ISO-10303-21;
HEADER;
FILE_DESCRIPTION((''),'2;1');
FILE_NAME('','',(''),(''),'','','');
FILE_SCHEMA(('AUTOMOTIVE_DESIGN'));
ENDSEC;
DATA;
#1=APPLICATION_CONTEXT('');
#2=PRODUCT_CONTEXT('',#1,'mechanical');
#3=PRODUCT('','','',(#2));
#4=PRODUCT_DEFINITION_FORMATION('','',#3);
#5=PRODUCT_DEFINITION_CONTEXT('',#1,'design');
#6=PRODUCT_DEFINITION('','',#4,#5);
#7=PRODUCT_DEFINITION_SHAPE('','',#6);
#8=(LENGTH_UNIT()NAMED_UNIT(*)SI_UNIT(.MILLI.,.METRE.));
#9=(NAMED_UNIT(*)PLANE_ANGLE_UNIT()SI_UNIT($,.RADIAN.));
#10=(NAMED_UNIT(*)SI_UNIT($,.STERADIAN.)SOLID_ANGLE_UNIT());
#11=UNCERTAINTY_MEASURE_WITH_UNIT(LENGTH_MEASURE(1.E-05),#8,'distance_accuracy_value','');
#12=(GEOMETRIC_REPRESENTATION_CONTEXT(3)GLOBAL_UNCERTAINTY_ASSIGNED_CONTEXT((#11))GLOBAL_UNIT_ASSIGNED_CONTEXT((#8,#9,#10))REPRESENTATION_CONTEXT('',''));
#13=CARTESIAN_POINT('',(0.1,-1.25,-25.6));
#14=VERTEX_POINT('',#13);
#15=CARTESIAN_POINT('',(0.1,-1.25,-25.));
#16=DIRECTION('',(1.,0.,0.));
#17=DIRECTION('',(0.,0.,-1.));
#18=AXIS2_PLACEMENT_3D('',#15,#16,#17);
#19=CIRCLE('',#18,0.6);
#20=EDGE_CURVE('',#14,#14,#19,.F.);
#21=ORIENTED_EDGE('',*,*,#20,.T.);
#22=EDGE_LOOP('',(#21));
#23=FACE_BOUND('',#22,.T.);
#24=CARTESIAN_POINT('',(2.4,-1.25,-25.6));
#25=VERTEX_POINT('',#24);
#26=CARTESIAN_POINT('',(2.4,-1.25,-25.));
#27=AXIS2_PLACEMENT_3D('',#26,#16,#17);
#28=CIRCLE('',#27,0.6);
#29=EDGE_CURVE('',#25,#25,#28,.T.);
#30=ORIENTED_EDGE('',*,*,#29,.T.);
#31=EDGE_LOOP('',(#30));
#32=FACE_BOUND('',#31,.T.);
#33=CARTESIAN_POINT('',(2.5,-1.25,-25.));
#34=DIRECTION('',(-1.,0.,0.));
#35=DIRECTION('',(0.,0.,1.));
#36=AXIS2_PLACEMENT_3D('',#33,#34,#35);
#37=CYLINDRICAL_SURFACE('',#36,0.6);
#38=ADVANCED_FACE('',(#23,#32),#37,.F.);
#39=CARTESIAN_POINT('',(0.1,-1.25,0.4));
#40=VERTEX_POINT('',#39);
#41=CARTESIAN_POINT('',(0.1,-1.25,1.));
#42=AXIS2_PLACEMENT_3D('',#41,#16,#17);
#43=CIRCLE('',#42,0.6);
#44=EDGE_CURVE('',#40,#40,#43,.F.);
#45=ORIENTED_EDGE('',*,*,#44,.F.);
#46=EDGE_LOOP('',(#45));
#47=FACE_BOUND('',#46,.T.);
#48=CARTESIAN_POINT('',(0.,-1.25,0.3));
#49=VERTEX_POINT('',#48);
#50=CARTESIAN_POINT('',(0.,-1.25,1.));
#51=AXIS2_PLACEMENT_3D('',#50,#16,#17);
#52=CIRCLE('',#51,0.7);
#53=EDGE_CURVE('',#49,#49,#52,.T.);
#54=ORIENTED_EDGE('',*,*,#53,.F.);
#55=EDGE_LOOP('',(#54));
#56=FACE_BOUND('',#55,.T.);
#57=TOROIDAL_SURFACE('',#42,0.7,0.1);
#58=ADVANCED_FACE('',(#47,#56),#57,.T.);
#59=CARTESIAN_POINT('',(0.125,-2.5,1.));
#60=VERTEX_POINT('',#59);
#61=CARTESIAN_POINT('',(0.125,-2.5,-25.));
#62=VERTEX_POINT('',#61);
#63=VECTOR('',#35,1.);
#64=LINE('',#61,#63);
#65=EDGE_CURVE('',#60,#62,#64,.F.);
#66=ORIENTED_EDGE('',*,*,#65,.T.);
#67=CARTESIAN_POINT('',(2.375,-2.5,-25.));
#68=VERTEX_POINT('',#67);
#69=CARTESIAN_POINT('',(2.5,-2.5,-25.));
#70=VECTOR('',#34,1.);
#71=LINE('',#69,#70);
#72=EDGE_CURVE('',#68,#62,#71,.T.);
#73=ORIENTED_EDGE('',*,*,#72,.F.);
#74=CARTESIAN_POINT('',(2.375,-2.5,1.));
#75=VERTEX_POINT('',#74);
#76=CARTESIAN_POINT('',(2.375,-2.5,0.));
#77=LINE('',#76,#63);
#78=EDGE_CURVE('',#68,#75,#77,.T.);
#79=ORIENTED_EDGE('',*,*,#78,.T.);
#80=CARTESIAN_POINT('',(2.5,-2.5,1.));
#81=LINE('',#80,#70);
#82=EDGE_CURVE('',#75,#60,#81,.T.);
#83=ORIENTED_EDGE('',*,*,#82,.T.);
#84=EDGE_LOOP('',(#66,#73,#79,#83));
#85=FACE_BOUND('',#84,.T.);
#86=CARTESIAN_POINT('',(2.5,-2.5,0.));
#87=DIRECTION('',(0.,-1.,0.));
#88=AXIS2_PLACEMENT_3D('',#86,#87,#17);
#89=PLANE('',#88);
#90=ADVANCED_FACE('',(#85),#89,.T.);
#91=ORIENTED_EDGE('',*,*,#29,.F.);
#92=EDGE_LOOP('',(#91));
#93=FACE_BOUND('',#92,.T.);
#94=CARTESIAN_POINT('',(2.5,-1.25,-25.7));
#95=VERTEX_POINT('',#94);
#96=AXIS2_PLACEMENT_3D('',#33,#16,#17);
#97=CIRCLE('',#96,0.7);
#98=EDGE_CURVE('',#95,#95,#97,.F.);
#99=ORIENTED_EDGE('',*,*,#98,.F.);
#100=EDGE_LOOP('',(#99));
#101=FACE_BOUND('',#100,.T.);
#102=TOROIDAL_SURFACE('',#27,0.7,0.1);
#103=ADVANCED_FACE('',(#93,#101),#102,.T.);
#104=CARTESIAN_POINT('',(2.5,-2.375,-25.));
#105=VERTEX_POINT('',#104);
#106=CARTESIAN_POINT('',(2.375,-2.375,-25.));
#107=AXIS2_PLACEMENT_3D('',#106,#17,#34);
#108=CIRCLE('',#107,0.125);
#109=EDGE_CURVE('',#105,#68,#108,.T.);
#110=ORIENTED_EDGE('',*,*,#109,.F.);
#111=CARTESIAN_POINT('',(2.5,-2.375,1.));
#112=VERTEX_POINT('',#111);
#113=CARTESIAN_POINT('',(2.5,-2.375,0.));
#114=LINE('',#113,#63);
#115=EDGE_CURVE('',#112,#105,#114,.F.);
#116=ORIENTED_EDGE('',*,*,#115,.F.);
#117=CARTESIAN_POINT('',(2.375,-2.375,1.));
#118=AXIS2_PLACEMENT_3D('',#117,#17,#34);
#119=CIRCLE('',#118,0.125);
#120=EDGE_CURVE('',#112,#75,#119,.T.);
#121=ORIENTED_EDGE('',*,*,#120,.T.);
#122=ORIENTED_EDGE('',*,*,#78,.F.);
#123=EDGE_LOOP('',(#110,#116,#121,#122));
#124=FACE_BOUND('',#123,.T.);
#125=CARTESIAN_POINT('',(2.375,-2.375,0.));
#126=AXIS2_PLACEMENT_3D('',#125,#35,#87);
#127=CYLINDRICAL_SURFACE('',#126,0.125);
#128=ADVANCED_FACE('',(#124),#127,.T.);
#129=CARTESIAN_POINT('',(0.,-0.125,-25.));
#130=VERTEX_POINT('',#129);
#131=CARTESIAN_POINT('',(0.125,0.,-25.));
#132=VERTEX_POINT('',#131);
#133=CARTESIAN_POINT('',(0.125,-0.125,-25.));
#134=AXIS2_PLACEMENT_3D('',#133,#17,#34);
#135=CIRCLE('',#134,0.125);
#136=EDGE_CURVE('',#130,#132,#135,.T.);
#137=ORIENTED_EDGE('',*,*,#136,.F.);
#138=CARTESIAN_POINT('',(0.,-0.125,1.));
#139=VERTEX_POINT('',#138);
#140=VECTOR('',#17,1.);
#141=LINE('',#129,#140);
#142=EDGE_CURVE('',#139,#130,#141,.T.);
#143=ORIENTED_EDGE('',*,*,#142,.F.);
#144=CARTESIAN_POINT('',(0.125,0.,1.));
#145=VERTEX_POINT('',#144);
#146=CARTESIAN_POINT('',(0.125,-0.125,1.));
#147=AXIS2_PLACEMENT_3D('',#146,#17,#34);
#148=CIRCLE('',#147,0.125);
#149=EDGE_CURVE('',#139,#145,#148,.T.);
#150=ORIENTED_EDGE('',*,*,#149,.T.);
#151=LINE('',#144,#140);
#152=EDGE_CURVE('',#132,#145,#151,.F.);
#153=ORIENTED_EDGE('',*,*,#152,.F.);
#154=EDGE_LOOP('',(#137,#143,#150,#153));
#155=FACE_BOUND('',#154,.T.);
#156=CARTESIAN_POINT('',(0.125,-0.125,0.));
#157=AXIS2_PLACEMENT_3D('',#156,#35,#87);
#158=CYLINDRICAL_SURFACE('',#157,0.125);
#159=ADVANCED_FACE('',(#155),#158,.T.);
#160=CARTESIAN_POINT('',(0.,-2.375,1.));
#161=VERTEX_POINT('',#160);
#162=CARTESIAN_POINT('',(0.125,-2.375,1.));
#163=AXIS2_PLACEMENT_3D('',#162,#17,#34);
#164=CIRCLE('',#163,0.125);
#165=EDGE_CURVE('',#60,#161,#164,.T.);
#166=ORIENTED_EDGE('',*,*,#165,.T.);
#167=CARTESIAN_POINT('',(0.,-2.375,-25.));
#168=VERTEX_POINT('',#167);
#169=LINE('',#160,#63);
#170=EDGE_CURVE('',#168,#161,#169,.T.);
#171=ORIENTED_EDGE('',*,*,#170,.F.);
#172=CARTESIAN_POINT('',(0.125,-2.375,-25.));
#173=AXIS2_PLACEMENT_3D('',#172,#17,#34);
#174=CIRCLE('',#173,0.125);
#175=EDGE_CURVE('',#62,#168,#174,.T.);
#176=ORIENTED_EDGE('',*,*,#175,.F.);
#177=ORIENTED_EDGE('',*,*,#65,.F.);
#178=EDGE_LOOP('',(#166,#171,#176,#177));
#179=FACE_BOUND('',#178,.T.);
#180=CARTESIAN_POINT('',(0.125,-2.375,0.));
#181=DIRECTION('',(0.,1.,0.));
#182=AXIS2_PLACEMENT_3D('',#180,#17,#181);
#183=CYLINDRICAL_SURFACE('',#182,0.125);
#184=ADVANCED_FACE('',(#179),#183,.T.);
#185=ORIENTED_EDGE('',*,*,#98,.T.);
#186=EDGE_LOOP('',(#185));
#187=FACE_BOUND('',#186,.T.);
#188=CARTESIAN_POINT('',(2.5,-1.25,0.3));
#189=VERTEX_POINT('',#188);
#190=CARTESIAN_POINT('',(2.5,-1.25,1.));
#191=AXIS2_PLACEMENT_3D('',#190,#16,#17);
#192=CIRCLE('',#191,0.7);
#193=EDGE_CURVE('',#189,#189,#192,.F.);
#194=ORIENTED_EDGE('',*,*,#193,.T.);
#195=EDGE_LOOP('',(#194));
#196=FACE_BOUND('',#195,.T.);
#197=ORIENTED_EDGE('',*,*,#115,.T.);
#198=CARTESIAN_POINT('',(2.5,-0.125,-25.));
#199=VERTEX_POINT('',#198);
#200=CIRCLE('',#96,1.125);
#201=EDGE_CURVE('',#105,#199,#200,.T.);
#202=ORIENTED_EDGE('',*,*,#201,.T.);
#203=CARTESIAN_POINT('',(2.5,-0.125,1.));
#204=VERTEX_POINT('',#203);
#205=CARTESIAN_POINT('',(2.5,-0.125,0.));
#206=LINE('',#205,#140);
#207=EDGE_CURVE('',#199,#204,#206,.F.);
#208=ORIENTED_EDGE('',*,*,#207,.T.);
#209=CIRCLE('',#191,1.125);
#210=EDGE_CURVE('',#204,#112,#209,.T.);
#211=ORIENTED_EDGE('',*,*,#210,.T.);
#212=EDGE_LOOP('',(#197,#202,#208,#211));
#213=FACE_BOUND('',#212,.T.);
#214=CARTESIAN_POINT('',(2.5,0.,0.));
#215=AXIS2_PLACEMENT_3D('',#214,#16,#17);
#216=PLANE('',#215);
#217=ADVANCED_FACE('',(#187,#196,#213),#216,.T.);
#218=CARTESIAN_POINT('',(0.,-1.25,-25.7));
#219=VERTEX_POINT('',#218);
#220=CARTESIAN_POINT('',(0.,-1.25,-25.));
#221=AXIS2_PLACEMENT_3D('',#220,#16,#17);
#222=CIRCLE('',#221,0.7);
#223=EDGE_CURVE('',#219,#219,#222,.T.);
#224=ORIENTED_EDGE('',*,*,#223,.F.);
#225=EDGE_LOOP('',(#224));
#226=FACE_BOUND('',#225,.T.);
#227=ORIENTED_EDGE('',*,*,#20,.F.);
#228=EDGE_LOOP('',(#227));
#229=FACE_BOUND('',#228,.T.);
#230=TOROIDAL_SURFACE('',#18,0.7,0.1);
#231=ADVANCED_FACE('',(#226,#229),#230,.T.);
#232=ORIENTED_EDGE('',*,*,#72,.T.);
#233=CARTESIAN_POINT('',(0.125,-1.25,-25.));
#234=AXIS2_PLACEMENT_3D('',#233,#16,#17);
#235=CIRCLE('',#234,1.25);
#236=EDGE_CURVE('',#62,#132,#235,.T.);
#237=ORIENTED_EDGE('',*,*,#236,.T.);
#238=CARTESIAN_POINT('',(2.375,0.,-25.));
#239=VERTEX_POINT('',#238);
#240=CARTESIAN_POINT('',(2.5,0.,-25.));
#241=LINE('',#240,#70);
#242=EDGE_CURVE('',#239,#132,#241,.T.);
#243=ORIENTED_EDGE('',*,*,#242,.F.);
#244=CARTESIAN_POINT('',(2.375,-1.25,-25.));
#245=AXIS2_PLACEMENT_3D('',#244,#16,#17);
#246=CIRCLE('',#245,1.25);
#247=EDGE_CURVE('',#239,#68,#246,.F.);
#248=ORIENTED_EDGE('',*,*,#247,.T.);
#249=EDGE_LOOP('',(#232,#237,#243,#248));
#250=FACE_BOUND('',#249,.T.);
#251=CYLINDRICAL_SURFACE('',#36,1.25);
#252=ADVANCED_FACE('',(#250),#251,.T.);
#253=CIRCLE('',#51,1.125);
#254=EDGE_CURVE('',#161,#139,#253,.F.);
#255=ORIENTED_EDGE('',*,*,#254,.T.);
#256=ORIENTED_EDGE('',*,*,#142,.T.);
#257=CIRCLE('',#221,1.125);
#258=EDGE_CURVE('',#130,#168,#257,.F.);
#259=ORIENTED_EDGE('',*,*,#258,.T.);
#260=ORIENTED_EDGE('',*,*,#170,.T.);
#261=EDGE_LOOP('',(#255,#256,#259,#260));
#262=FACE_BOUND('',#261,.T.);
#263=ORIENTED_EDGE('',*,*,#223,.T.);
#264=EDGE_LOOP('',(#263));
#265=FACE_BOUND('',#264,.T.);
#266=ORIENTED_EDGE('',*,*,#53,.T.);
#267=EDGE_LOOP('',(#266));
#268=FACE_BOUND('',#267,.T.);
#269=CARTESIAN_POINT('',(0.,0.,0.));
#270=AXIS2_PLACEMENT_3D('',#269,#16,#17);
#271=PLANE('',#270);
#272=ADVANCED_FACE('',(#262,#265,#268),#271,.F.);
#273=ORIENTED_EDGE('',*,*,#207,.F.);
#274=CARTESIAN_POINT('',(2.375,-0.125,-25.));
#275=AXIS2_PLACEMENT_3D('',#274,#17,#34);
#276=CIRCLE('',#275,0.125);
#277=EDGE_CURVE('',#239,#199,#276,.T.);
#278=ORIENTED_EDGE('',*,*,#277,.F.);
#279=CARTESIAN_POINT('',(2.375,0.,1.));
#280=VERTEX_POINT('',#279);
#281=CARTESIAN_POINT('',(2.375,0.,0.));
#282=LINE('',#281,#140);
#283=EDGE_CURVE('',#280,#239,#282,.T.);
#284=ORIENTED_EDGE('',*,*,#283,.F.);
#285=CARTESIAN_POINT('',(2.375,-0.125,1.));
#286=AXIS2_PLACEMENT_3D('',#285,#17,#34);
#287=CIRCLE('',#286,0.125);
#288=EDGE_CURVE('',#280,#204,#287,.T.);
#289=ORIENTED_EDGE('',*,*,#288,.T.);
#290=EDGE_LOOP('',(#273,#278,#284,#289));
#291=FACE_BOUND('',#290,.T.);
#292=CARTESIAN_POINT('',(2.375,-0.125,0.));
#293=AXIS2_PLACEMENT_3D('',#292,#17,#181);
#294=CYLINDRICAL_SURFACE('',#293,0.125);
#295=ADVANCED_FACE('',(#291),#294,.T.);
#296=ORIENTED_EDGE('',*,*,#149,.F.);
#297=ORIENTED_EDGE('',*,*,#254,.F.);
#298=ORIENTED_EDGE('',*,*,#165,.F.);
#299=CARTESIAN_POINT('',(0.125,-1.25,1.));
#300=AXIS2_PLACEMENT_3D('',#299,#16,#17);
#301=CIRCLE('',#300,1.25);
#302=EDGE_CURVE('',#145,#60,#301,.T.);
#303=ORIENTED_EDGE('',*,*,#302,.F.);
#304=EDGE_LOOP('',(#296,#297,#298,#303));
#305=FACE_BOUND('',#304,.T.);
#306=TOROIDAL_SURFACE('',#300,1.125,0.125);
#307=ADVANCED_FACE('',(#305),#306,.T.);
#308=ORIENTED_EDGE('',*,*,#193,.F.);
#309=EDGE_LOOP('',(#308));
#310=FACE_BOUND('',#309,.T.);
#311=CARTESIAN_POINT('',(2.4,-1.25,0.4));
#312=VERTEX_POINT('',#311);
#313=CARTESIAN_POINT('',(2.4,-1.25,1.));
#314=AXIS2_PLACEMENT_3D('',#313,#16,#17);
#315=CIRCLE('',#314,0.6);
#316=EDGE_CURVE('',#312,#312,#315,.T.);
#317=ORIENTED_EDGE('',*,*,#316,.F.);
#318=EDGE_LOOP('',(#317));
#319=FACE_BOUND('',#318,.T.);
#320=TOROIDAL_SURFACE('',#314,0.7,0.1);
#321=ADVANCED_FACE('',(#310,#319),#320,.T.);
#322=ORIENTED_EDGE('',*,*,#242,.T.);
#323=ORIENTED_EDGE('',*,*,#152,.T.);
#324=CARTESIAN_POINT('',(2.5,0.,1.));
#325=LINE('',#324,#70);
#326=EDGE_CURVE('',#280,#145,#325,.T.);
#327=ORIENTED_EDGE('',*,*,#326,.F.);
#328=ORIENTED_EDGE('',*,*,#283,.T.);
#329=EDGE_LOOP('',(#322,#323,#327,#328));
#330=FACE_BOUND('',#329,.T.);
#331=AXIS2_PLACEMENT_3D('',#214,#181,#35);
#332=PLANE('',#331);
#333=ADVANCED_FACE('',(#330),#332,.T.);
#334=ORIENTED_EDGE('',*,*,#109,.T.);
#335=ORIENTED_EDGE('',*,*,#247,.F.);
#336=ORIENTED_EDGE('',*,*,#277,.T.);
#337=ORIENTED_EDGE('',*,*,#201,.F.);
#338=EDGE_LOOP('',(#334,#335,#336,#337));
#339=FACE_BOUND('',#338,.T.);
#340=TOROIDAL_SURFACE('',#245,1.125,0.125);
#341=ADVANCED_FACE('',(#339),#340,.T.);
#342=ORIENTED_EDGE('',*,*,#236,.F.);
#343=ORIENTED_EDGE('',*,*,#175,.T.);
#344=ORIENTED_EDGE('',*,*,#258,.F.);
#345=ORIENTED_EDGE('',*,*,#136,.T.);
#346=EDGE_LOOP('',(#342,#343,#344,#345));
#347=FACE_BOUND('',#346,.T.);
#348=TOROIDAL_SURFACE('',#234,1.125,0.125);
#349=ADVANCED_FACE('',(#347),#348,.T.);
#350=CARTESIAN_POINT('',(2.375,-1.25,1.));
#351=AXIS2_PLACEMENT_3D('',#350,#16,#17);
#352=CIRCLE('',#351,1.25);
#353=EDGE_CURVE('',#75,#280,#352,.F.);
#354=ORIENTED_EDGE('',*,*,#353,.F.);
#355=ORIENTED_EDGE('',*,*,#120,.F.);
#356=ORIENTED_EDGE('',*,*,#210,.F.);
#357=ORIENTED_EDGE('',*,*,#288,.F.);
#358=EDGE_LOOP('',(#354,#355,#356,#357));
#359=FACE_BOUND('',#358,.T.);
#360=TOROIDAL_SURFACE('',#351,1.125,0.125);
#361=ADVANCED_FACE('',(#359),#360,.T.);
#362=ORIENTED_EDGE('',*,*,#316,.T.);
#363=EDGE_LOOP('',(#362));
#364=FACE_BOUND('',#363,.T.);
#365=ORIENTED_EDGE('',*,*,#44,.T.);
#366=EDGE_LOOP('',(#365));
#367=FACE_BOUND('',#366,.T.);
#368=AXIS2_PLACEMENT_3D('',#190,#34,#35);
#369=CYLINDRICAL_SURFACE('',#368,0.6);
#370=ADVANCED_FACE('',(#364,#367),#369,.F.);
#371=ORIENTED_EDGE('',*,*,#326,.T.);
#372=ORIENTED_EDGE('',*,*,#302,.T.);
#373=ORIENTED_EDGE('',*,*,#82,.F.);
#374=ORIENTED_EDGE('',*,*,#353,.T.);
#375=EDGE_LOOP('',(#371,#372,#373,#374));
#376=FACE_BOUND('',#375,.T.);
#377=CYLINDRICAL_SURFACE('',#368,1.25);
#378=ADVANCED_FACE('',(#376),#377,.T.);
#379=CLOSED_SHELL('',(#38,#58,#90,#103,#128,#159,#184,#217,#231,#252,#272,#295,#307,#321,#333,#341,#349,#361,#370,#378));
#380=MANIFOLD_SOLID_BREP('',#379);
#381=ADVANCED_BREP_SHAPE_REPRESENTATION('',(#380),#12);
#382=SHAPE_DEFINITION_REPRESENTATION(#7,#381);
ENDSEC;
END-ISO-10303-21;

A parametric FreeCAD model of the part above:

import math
import FreeCAD as App
import Part
import Sketcher
from FreeCAD import Vector


def edges_at(feature, points):
    """Names of the edges that pass closest to the given points."""
    edges = feature.Shape.Edges
    near = lambda p: min(range(len(edges)), key=lambda i: edges[i].distToShape(Part.Vertex(*p))[0])
    return sorted({f"Edge{near(p) + 1}" for p in points})

doc = App.newDocument("Part")
params = doc.addObject("Spreadsheet::Sheet", "Params")
for row, (alias, value) in enumerate([
    ("sketch1_diameter", "1.2 mm"),
    ("sketch1_height", "26 mm"),
    ("sketch1_radius", "1.25 mm"),
    ("pad1_length", "2.5 mm"),
    ("fillet_radius", "0.125 mm"),
    ("fillet2_radius", "0.1 mm"),
], start=1):
    params.set(f"A{row}", alias)
    params.set(f"B{row}", "=" + value)
    params.setAlias(f"B{row}", alias)

body = doc.addObject("PartDesign::Body", "Body")

# Sketch on YZ plane
sketch1 = doc.addObject("Sketcher::SketchObject", "Sketch")
body.addObject(sketch1)
sketch1.AttachmentSupport = (doc.YZ_Plane, [""])
sketch1.MapMode = "FlatFace"
sketch1.addGeometry([
    Part.ArcOfCircle(Part.Circle(Vector(-1.2, -25, 0), Vector(0, 0, 1), 1.2), math.radians(180), math.radians(360)),  # 0
    Part.LineSegment(Vector(0, -25, 0), Vector(0, 1, 0)),  # 1
    Part.ArcOfCircle(Part.Circle(Vector(-1.2, 1, 0), Vector(0, 0, 1), 1.2), math.radians(0), math.radians(180)),  # 2
    Part.LineSegment(Vector(-2.5, 1, 0), Vector(-2.5, -25, 0)),  # 3
    Part.Circle(Vector(-1.2, -25, 0), Vector(0, 0, 1), 0.6),  # 4
    Part.Circle(Vector(-1.2, 1, 0), Vector(0, 0, 1), 0.6),  # 5
], False)
sketch1.addConstraint([
    Sketcher.Constraint("Tangent", 0, 2, 1, 1),
    Sketcher.Constraint("Tangent", 1, 2, 2, 1),
    Sketcher.Constraint("Tangent", 2, 2, 3, 1),
    Sketcher.Constraint("Tangent", 3, 2, 0, 1),
    Sketcher.Constraint("Vertical", 1),
    Sketcher.Constraint("Vertical", 3),
    Sketcher.Constraint("Coincident", 4, 3, 0, 3),
    Sketcher.Constraint("Coincident", 5, 3, 2, 3),
    Sketcher.Constraint("Equal", 4, 5),
    Sketcher.Constraint("PointOnObject", 0, 2, -2),
    Sketcher.Constraint("Diameter", 4, 1.2),
    Sketcher.Constraint("DistanceY", 1, 1, 1, 2, 26.0),
    Sketcher.Constraint("Radius", 0, 1.25),
    Sketcher.Constraint("DistanceY", 0, 3, -1, 1, 25.0),
])
sketch1.setExpression("Constraints[10]", "Params.sketch1_diameter")
sketch1.setExpression("Constraints[11]", "Params.sketch1_height")
sketch1.setExpression("Constraints[12]", "Params.sketch1_radius")
pad1 = doc.addObject("PartDesign::Pad", "Pad")
body.addObject(pad1)
pad1.Profile = sketch1
pad1.setExpression("Length", "Params.pad1_length")
doc.recompute()

fillet = doc.addObject("PartDesign::Fillet", "Fillet")
body.addObject(fillet)
fillet.Base = (pad1, edges_at(pad1, [
    (0, -1.25, 2.25),
    (0, 0, -12),
    (0, -1.25, -26.25),
    (2.5, 0, -12),
    (2.5, -1.25, 2.25),
    (2.5, -2.5, -12),
    (2.5, -1.25, -26.25),
    (0, -2.5, -12),
]))
fillet.setExpression("Radius", "Params.fillet_radius")
doc.recompute()

fillet2 = doc.addObject("PartDesign::Fillet", "Fillet001")
body.addObject(fillet2)
fillet2.Base = (fillet, edges_at(fillet, [
    (2.5, -1.25, -24.4),
    (2.5, -1.25, 1.6),
    (0, -1.25, 1.6),
    (0, -1.25, -24.4),
]))
fillet2.setExpression("Radius", "Params.fillet2_radius")

doc.recompute()
